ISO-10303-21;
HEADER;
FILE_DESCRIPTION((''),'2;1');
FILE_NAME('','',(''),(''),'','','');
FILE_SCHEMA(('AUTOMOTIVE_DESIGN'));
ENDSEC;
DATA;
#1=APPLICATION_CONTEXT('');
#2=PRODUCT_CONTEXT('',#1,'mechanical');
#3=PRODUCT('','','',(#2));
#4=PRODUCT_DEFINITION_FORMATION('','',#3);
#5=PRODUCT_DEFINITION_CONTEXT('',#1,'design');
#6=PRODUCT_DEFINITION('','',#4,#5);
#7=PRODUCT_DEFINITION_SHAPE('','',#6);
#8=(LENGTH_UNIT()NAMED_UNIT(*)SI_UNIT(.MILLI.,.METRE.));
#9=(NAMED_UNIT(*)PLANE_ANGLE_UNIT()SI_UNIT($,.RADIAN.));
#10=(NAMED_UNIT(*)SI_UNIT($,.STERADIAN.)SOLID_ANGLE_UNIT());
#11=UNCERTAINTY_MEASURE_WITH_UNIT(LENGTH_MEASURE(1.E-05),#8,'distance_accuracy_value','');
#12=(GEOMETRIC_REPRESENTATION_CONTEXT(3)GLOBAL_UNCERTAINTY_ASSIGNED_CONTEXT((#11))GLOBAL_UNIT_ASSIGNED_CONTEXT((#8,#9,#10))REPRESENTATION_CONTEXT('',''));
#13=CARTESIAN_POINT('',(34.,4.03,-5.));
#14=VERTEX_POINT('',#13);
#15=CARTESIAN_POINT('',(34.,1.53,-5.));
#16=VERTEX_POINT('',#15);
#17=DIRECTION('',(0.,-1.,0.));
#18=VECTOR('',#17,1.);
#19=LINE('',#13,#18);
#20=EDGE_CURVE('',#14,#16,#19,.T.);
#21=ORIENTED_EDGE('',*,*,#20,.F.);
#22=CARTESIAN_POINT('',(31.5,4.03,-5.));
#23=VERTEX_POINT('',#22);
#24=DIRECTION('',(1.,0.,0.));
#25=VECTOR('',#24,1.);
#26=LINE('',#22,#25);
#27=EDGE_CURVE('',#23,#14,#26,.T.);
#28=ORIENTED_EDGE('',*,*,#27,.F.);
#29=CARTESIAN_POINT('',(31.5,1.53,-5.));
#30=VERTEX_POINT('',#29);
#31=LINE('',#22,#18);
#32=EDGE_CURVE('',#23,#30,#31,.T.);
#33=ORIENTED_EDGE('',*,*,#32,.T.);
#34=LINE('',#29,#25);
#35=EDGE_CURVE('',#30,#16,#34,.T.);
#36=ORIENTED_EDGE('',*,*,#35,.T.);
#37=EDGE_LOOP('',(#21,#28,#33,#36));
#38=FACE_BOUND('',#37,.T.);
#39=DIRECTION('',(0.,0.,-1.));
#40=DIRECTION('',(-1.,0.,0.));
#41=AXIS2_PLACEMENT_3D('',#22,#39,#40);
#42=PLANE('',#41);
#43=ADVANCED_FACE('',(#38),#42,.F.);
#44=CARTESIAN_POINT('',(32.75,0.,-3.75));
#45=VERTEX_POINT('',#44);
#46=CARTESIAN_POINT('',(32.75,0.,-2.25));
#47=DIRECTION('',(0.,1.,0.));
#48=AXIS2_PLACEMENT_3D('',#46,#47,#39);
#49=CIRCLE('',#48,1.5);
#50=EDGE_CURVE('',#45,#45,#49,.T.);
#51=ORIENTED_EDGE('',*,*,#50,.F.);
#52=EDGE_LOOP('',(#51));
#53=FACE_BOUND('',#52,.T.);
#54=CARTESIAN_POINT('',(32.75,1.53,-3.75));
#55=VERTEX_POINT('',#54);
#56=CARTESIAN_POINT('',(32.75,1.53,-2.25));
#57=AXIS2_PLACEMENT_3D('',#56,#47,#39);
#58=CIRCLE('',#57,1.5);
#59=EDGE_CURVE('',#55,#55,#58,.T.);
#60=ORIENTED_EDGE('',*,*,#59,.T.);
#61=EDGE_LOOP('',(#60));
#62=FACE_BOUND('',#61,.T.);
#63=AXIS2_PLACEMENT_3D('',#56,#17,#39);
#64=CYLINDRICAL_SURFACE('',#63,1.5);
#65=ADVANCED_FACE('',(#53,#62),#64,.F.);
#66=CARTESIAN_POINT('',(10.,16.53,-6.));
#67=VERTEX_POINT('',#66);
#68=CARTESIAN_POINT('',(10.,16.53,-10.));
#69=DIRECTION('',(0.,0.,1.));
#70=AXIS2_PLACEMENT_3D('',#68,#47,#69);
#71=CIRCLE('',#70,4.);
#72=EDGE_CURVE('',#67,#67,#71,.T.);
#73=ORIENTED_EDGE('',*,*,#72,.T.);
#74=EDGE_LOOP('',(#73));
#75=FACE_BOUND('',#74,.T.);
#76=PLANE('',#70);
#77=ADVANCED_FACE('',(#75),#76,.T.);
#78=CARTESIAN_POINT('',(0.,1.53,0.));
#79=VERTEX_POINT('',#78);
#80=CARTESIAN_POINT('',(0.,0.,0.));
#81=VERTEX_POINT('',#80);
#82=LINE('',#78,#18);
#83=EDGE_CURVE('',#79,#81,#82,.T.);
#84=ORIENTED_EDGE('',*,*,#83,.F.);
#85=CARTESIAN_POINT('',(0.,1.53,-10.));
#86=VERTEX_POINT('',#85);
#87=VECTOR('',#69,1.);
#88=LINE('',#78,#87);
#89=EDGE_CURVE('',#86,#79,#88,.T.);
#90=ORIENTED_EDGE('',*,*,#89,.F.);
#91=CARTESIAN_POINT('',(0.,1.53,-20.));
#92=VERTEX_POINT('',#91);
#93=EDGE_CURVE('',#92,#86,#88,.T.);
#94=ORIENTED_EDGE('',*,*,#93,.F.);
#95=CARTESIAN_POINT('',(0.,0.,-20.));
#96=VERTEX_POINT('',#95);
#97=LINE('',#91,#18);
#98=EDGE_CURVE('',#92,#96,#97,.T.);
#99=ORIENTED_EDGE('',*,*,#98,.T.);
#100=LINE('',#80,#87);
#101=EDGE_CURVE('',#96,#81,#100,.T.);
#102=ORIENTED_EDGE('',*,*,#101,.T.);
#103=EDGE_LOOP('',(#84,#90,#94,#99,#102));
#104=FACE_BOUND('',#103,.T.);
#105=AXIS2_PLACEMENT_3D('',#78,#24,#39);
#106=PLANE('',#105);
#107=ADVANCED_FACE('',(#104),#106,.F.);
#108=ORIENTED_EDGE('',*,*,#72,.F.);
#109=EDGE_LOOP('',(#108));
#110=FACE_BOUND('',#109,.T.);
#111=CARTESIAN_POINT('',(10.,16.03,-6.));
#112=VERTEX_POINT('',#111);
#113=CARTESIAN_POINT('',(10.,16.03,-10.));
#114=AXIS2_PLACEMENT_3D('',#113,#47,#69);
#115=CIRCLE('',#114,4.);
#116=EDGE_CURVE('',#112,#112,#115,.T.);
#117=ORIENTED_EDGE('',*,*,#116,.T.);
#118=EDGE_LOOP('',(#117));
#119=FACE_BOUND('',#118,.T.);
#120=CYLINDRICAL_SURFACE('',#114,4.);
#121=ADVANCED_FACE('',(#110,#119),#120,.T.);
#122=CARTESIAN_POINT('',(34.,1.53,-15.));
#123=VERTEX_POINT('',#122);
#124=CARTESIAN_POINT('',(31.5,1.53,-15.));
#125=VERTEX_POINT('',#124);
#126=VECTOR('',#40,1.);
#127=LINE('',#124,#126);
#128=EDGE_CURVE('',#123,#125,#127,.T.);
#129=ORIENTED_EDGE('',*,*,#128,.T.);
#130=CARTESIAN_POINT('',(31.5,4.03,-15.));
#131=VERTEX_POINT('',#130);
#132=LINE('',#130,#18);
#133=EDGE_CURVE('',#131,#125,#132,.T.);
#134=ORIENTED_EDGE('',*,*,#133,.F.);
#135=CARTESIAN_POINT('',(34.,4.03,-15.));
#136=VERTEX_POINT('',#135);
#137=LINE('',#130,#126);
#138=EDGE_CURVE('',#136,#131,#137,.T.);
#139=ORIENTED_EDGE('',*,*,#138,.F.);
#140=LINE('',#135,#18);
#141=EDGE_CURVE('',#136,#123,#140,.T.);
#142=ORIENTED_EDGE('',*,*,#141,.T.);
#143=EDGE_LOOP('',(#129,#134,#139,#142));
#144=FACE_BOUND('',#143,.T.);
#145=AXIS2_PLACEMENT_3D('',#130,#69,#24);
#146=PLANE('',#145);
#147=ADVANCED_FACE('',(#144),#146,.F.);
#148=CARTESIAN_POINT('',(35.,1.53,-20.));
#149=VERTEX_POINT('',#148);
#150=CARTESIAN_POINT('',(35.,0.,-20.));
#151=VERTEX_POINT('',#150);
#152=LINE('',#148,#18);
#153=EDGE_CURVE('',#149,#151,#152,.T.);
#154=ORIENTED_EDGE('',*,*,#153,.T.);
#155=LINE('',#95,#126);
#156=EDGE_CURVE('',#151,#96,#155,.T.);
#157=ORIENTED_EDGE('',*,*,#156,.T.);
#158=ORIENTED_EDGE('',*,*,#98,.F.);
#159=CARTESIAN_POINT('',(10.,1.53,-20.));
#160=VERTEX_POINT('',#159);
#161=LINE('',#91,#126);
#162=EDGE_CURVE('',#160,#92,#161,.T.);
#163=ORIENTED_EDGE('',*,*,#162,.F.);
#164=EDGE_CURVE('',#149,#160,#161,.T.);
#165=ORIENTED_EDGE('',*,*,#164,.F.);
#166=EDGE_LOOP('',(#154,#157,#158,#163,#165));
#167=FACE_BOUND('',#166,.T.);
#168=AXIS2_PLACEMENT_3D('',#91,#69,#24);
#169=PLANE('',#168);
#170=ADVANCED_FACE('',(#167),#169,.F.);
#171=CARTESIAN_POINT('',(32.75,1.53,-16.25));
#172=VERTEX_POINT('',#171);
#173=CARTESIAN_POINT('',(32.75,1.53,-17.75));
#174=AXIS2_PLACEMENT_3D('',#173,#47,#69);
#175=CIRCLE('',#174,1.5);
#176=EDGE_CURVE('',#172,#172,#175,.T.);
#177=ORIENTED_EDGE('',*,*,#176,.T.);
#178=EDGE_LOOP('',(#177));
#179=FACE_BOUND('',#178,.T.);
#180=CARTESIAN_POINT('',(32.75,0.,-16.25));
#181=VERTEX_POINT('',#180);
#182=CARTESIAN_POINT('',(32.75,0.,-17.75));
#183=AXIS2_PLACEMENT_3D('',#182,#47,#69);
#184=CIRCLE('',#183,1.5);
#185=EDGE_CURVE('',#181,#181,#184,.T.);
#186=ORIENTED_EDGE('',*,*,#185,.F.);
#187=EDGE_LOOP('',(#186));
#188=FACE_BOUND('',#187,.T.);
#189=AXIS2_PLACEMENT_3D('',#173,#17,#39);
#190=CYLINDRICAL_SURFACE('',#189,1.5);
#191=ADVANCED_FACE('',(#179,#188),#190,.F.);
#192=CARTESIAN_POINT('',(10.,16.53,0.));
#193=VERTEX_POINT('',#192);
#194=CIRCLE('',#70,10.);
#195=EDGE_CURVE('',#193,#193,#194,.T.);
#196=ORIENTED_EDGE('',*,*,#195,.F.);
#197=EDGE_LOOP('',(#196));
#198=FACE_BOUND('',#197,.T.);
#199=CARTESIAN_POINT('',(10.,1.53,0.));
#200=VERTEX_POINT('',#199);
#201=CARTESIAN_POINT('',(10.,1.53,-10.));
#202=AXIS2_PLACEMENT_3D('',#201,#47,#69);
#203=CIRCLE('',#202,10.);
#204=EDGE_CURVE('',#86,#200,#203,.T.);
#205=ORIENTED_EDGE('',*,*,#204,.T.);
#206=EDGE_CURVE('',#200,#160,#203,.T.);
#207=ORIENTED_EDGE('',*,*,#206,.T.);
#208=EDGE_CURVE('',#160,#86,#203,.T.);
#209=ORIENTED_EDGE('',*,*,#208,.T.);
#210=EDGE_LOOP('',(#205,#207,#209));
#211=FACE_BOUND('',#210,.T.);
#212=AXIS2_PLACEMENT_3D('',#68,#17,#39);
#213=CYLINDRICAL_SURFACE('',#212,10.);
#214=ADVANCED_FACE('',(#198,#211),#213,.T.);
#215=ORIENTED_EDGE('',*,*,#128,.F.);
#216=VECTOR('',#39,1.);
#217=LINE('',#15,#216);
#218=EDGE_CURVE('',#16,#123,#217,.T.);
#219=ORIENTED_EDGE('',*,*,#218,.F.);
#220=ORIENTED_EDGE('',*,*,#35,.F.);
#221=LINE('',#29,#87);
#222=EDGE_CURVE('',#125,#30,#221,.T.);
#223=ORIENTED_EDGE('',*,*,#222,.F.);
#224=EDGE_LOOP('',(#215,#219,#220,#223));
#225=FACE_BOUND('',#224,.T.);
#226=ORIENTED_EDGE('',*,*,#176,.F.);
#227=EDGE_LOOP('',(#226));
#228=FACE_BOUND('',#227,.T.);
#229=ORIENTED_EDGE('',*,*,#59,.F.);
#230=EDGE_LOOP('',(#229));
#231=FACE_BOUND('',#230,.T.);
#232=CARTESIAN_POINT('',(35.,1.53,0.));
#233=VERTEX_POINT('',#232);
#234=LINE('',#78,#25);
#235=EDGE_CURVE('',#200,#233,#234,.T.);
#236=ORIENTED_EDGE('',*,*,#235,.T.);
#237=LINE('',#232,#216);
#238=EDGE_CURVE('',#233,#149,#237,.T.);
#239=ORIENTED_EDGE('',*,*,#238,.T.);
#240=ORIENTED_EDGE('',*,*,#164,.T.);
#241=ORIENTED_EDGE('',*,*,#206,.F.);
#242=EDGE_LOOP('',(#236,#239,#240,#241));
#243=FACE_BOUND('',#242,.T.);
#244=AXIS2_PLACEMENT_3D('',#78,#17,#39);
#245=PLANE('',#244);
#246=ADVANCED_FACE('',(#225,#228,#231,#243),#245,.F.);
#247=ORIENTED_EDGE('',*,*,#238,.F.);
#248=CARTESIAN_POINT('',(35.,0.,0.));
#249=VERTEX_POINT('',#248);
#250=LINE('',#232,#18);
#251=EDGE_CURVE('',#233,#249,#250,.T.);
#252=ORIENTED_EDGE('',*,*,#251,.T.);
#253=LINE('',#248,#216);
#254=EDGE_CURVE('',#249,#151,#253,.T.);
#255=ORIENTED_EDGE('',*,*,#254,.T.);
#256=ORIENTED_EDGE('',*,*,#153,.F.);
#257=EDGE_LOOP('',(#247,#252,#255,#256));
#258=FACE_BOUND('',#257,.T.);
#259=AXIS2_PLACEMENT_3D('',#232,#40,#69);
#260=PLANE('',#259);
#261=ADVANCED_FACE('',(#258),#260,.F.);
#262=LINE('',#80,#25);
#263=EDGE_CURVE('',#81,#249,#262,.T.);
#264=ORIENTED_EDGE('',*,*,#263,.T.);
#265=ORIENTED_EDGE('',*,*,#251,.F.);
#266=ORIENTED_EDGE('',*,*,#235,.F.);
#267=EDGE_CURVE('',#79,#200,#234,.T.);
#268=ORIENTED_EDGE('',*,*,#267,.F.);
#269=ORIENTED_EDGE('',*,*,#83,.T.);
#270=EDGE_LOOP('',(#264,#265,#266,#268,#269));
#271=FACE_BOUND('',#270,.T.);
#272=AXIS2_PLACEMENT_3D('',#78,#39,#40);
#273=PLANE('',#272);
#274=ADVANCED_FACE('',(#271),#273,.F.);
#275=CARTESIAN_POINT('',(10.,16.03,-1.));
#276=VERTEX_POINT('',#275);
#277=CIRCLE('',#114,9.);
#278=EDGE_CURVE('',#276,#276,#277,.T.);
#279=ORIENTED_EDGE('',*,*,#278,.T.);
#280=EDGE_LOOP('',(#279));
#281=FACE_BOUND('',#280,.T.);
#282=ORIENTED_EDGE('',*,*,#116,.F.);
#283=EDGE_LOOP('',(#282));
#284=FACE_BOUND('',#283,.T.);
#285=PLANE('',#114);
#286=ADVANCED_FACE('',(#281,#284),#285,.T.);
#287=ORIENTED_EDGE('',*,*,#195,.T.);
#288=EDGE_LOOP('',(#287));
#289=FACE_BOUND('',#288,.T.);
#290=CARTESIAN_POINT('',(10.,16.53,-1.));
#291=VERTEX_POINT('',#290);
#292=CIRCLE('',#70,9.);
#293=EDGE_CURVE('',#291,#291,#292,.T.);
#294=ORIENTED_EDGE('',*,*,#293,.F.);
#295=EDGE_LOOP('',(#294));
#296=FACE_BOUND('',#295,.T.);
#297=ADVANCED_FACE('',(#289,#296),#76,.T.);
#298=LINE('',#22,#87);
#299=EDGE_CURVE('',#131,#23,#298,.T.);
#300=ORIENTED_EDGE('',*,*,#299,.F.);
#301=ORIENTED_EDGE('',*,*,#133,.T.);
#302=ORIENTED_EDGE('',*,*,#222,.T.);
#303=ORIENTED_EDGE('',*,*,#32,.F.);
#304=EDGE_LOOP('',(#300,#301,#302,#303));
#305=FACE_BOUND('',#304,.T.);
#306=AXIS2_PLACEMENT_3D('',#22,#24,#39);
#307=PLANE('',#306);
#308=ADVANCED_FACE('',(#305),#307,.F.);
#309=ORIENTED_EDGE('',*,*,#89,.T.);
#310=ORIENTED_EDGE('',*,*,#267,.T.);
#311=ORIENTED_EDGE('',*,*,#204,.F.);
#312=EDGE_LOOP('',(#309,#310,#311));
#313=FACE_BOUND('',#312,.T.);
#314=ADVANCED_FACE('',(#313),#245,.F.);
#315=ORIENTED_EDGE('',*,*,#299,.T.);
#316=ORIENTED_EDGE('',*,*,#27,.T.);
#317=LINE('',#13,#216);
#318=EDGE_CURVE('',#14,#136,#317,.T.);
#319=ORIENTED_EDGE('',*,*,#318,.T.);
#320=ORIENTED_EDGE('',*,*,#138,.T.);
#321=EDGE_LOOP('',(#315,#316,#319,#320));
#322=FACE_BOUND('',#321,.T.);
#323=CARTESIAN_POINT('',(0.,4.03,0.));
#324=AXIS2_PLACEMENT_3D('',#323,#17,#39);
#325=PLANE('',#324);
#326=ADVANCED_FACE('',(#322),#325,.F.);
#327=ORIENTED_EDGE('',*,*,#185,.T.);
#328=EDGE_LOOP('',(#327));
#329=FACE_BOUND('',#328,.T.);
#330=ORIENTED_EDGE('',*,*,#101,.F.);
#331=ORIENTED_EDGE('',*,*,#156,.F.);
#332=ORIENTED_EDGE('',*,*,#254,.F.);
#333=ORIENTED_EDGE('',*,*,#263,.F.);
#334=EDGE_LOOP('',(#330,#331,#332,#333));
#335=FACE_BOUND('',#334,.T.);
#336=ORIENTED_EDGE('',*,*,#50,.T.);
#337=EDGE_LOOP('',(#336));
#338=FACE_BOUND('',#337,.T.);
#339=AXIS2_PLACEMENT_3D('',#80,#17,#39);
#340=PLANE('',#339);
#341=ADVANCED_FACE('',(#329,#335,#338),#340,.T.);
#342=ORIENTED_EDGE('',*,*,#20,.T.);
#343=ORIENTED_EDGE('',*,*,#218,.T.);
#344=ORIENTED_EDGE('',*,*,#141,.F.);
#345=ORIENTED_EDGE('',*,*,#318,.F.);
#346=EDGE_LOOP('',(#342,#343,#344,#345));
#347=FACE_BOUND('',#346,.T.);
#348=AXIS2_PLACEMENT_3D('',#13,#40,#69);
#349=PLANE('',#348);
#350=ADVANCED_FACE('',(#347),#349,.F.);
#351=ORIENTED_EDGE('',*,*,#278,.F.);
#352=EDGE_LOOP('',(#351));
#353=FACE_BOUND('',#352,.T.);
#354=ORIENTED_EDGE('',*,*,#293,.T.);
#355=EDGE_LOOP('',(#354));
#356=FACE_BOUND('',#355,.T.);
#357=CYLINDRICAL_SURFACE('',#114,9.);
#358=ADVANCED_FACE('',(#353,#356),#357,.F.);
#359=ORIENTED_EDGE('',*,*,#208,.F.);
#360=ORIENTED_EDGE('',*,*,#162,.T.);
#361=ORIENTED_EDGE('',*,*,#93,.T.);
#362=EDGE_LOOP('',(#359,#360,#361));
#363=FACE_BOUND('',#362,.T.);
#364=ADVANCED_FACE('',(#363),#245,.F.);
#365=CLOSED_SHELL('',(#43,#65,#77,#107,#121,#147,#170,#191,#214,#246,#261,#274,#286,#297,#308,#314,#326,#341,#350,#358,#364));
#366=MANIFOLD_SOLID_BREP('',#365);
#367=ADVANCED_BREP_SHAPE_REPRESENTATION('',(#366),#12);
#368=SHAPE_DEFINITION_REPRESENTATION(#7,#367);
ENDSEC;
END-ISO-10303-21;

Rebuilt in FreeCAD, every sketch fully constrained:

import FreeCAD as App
import Part
import Sketcher
from FreeCAD import Vector

doc = App.newDocument("Part")
params = doc.addObject("Spreadsheet::Sheet", "Params")
for row, (alias, value) in enumerate([
    ("sketch1_diameter", "3 mm"),
    ("sketch1_width", "35 mm"),
    ("sketch1_height", "20 mm"),
    ("pad1_length", "1.53 mm"),
    ("sketch2_diameter", "20 mm"),
    ("pad2_length", "15 mm"),
    ("sketch3_diameter", "18 mm"),
    ("sketch3_diameter2", "8 mm"),
    ("pocket1_length", "0.5 mm"),
    ("sketch4_height", "10 mm"),
    ("sketch4_width", "2.5 mm"),
    ("pad3_length", "2.5 mm"),
], start=1):
    params.set(f"A{row}", alias)
    params.set(f"B{row}", "=" + value)
    params.setAlias(f"B{row}", alias)

body = doc.addObject("PartDesign::Body", "Body")

# Sketch on XZ plane
sketch1 = body.newObject("Sketcher::SketchObject", "Sketch")
sketch1.AttachmentSupport = (doc.getObject("XZ_Plane"), [""])
sketch1.MapMode = "FlatFace"
sketch1.addGeometry([
    Part.LineSegment(Vector(0, -20, 0), Vector(0, 0, 0)),  # 0
    Part.LineSegment(Vector(0, 0, 0), Vector(35, 0, 0)),  # 1
    Part.LineSegment(Vector(35, 0, 0), Vector(35, -20, 0)),  # 2
    Part.LineSegment(Vector(35, -20, 0), Vector(0, -20, 0)),  # 3
    Part.Circle(Vector(32.75, -2.25, 0), Vector(0, 0, 1), 1.5),  # 4
    Part.Circle(Vector(32.75, -17.75, 0), Vector(0, 0, 1), 1.5),  # 5
], False)
sketch1.addConstraint([
    Sketcher.Constraint("Coincident", 0, 2, 1, 1),
    Sketcher.Constraint("Coincident", 1, 2, 2, 1),
    Sketcher.Constraint("Coincident", 2, 2, 3, 1),
    Sketcher.Constraint("Coincident", 3, 2, 0, 1),
    Sketcher.Constraint("Vertical", 0),
    Sketcher.Constraint("Horizontal", 1),
    Sketcher.Constraint("Vertical", 2),
    Sketcher.Constraint("Horizontal", 3),
    Sketcher.Constraint("Coincident", 0, 2, -1, 1),
    Sketcher.Constraint("Equal", 4, 5),
    Sketcher.Constraint("Vertical", 4, 3, 5, 3),
    Sketcher.Constraint("Diameter", 4, 3.0),
    Sketcher.Constraint("DistanceX", 1, 1, 1, 2, 35.0),
    Sketcher.Constraint("DistanceY", 0, 1, 0, 2, 20.0),
    Sketcher.Constraint("DistanceY", 5, 3, 4, 3, 15.5),
    Sketcher.Constraint("DistanceX", -1, 1, 4, 3, 32.75),
    Sketcher.Constraint("DistanceY", 4, 3, -1, 1, 2.25),
])
sketch1.setExpression("Constraints[11]", "Params.sketch1_diameter")
sketch1.setExpression("Constraints[12]", "Params.sketch1_width")
sketch1.setExpression("Constraints[13]", "Params.sketch1_height")
pad1 = body.newObject("PartDesign::Pad", "Pad")
pad1.Profile = sketch1
pad1.setExpression("Length", "Params.pad1_length")
pad1.Reversed = True

# Sketch on XZ plane
sketch2 = body.newObject("Sketcher::SketchObject", "Sketch001")
sketch2.AttachmentSupport = (doc.getObject("XZ_Plane"), [""])
sketch2.MapMode = "FlatFace"
sketch2.AttachmentOffset = App.Placement(Vector(0, 0, -1.53), App.Rotation())
sketch2.addGeometry(Part.Circle(Vector(10, -10, 0), Vector(0, 0, 1), 10), False)
sketch2.addConstraint([
    Sketcher.Constraint("Diameter", 0, 20.0),
    Sketcher.Constraint("DistanceX", -1, 1, 0, 3, 10.0),
    Sketcher.Constraint("DistanceY", 0, 3, -1, 1, 10.0),
])
sketch2.setExpression("Constraints[0]", "Params.sketch2_diameter")
pad2 = body.newObject("PartDesign::Pad", "Pad001")
pad2.Profile = sketch2
pad2.setExpression("Length", "Params.pad2_length")
pad2.Reversed = True

# Sketch on XZ plane
sketch3 = body.newObject("Sketcher::SketchObject", "Sketch002")
sketch3.AttachmentSupport = (doc.getObject("XZ_Plane"), [""])
sketch3.MapMode = "FlatFace"
sketch3.AttachmentOffset = App.Placement(Vector(0, 0, -16.53), App.Rotation())
sketch3.addGeometry([
    Part.Circle(Vector(10, -10, 0), Vector(0, 0, 1), 9),
    Part.Circle(Vector(10, -10, 0), Vector(0, 0, 1), 4),
], False)
sketch3.addConstraint([
    Sketcher.Constraint("Coincident", 1, 3, 0, 3),
    Sketcher.Constraint("Diameter", 0, 18.0),
    Sketcher.Constraint("Diameter", 1, 8.0),
    Sketcher.Constraint("DistanceX", -1, 1, 0, 3, 10.0),
    Sketcher.Constraint("DistanceY", 0, 3, -1, 1, 10.0),
])
sketch3.setExpression("Constraints[1]", "Params.sketch3_diameter")
sketch3.setExpression("Constraints[2]", "Params.sketch3_diameter2")
pocket1 = body.newObject("PartDesign::Pocket", "Pocket")
pocket1.Profile = sketch3
pocket1.setExpression("Length", "Params.pocket1_length")
pocket1.Reversed = True

# Sketch on XZ plane
sketch4 = body.newObject("Sketcher::SketchObject", "Sketch003")
sketch4.AttachmentSupport = (doc.getObject("XZ_Plane"), [""])
sketch4.MapMode = "FlatFace"
sketch4.AttachmentOffset = App.Placement(Vector(0, 0, -1.53), App.Rotation())
sketch4.addGeometry([
    Part.LineSegment(Vector(31.5, -15, 0), Vector(31.5, -5, 0)),
    Part.LineSegment(Vector(31.5, -5, 0), Vector(34, -5, 0)),
    Part.LineSegment(Vector(34, -5, 0), Vector(34, -15, 0)),
    Part.LineSegment(Vector(34, -15, 0), Vector(31.5, -15, 0)),
], False)
sketch4.addConstraint([
    Sketcher.Constraint("Coincident", 0, 2, 1, 1),
    Sketcher.Constraint("Coincident", 1, 2, 2, 1),
    Sketcher.Constraint("Coincident", 2, 2, 3, 1),
    Sketcher.Constraint("Coincident", 3, 2, 0, 1),
    Sketcher.Constraint("Vertical", 0),
    Sketcher.Constraint("Horizontal", 1),
    Sketcher.Constraint("Vertical", 2),
    Sketcher.Constraint("Horizontal", 3),
    Sketcher.Constraint("DistanceY", 0, 1, 0, 2, 10.0),
    Sketcher.Constraint("DistanceX", 1, 1, 1, 2, 2.5),
    Sketcher.Constraint("DistanceY", 0, 2, -1, 1, 5.0),
    Sketcher.Constraint("DistanceX", -1, 1, 1, 2, 34.0),
])
sketch4.setExpression("Constraints[8]", "Params.sketch4_height")
sketch4.setExpression("Constraints[9]", "Params.sketch4_width")
pad3 = body.newObject("PartDesign::Pad", "Pad002")
pad3.Profile = sketch4
pad3.setExpression("Length", "Params.pad3_length")
pad3.Reversed = True

doc.recompute()
